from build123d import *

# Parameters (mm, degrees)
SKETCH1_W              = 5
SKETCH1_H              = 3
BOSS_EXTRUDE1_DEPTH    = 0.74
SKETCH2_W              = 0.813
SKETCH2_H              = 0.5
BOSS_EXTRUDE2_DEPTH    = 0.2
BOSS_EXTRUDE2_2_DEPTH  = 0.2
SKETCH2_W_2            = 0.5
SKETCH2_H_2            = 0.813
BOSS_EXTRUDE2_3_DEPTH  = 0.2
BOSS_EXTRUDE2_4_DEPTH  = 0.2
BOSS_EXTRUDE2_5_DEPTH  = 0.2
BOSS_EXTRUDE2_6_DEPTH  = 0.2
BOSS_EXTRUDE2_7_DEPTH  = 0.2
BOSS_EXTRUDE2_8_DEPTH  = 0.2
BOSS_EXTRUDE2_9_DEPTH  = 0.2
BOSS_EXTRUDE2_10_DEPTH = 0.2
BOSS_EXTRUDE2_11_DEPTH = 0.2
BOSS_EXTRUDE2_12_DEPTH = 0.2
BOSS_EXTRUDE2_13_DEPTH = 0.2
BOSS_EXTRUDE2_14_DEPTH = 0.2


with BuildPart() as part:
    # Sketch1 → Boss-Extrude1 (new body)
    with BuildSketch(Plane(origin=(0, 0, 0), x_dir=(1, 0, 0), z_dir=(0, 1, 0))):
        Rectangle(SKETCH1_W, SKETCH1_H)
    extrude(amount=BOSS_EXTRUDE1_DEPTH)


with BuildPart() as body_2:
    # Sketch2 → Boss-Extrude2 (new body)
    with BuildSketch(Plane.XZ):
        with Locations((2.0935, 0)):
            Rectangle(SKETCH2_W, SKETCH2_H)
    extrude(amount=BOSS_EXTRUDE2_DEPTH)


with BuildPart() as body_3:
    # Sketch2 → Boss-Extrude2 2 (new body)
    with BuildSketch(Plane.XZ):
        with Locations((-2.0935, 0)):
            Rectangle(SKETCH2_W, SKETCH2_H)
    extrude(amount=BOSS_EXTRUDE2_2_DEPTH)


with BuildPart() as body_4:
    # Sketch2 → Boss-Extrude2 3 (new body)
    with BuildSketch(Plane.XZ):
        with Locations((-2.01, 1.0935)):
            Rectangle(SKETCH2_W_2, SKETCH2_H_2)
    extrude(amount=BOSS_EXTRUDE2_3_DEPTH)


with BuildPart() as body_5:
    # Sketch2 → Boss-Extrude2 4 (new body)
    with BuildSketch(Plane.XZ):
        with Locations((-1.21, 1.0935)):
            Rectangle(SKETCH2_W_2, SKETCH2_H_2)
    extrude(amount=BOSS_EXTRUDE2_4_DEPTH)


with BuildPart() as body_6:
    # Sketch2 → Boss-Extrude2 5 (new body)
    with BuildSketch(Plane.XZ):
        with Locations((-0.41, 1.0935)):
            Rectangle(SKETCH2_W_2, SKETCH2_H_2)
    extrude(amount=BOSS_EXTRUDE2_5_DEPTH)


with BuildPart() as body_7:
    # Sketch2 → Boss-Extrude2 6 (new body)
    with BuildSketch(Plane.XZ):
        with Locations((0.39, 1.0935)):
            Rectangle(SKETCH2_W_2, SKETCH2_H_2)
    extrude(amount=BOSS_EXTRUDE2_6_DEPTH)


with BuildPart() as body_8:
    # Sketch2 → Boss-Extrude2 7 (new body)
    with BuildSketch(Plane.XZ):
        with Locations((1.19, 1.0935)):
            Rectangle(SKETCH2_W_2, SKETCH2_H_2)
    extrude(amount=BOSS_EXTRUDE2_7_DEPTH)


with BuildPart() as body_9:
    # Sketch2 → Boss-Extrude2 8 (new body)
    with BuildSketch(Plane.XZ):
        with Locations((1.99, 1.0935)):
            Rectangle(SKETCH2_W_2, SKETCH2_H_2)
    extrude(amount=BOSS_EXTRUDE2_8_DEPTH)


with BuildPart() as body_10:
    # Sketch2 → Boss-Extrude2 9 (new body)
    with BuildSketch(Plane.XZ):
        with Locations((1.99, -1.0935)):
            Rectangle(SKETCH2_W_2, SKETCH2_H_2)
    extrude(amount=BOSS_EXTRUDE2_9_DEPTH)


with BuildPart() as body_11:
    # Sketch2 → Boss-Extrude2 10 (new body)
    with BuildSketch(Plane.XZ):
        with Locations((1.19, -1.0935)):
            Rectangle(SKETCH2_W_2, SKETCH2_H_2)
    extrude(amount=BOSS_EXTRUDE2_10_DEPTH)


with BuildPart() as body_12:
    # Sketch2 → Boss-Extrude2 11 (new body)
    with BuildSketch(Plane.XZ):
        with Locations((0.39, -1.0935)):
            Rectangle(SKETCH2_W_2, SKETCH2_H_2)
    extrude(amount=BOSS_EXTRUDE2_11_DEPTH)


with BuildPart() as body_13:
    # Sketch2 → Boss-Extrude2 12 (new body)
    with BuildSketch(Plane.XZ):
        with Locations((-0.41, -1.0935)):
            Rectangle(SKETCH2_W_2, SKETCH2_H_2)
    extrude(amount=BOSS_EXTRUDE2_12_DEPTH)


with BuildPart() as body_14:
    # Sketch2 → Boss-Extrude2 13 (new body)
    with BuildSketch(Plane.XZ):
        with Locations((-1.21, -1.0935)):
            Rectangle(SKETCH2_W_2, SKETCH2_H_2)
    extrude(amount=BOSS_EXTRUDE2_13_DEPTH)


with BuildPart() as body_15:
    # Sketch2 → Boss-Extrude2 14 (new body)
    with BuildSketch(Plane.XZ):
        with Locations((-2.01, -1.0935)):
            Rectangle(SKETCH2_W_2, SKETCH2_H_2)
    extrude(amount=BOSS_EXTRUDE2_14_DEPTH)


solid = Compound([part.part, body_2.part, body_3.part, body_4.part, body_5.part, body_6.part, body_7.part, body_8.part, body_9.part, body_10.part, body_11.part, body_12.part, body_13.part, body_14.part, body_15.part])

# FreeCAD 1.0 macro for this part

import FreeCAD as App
import Part
import Sketcher
from FreeCAD import Vector


def add_polygon(sketch, points):
    """Adds a closed chain of lines whose ends are joined by coincident constraints."""
    first, n = sketch.GeometryCount, len(points)
    for a, b in zip(points, points[1:] + points[:1]):
        sketch.addGeometry(Part.LineSegment(App.Vector(*a, 0), App.Vector(*b, 0)), False)
    for i in range(n):
        sketch.addConstraint(Sketcher.Constraint("Coincident", first + i, 2, first + (i + 1) % n, 1))

doc = App.newDocument("Part")
body = doc.addObject("PartDesign::Body", "Body")

# Sketch on XZ plane
sketch1 = body.newObject("Sketcher::SketchObject", "Sketch")
sketch1.AttachmentSupport = (doc.getObject("XZ_Plane"), [""])
sketch1.MapMode = "FlatFace"
add_polygon(sketch1, [(-2.5, -1.5), (-2.5, 1.5), (2.5, 1.5), (2.5, -1.5)])  # lines 0-3
sketch1.addConstraint([
    Sketcher.Constraint("Vertical", 0),
    Sketcher.Constraint("Horizontal", 1),
    Sketcher.Constraint("Vertical", 2),
    Sketcher.Constraint("Horizontal", 3),
    Sketcher.Constraint("Symmetric", 0, 2, 2, 2, -1, 1),
    Sketcher.Constraint("DistanceX", 1, 1, 1, 2, 5.0),
    Sketcher.Constraint("DistanceY", 0, 1, 0, 2, 3.0),
])
pad1 = body.newObject("PartDesign::Pad", "Pad")
pad1.Profile = sketch1
pad1.Length = 0.74
pad1.Reversed = True
body2 = doc.addObject("PartDesign::Body", "Body001")

# Sketch on XZ plane
sketch2 = body2.newObject("Sketcher::SketchObject", "Sketch001")
sketch2.AttachmentSupport = (doc.getObject("XZ_Plane001"), [""])
sketch2.MapMode = "FlatFace"
add_polygon(sketch2, [(1.7, 0.2), (1.7, -0.2), (2.5, -0.2), (2.5, 0.2)])  # lines 0-3
sketch2.addConstraint([
    Sketcher.Constraint("Vertical", 0),
    Sketcher.Constraint("Horizontal", 1),
    Sketcher.Constraint("Vertical", 2),
    Sketcher.Constraint("Horizontal", 3),
    Sketcher.Constraint("DistanceY", 0, 2, 0, 1, 0.5),
    Sketcher.Constraint("DistanceX", -1, 1, 1, 2, 2.5),
    Sketcher.Constraint("DistanceX", 1, 1, 1, 2, 0.813),
    Sketcher.Constraint("DistanceY", 0, 2, -1, 1, 0.25),
])
pad2 = body2.newObject("PartDesign::Pad", "Pad001")
pad2.Profile = sketch2
pad2.Length = 0.2
body3 = doc.addObject("PartDesign::Body", "Body002")

# Sketch on XZ plane
sketch3 = body3.newObject("Sketcher::SketchObject", "Sketch002")
sketch3.AttachmentSupport = (doc.getObject("XZ_Plane002"), [""])
sketch3.MapMode = "FlatFace"
add_polygon(sketch3, [(-2.5, 0.2), (-2.5, -0.2), (-1.7, -0.2), (-1.7, 0.2)])  # lines 0-3
sketch3.addConstraint([
    Sketcher.Constraint("Vertical", 0),
    Sketcher.Constraint("Horizontal", 1),
    Sketcher.Constraint("Vertical", 2),
    Sketcher.Constraint("Horizontal", 3),
    Sketcher.Constraint("DistanceY", 0, 2, 0, 1, 0.5),
    Sketcher.Constraint("DistanceX", 0, 2, -1, 1, 2.5),
    Sketcher.Constraint("DistanceX", 1, 1, 1, 2, 0.813),
    Sketcher.Constraint("DistanceY", 0, 2, -1, 1, 0.25),
])
pad3 = body3.newObject("PartDesign::Pad", "Pad002")
pad3.Profile = sketch3
pad3.Length = 0.2
body4 = doc.addObject("PartDesign::Body", "Body003")

# Sketch on XZ plane
sketch4 = body4.newObject("Sketcher::SketchObject", "Sketch003")
sketch4.AttachmentSupport = (doc.getObject("XZ_Plane003"), [""])
sketch4.MapMode = "FlatFace"
add_polygon(sketch4, [(-2.26, 1.5), (-2.26, 0.69), (-1.76, 0.69), (-1.76, 1.5)])  # lines 0-3
sketch4.addConstraint([
    Sketcher.Constraint("Vertical", 0),
    Sketcher.Constraint("Horizontal", 1),
    Sketcher.Constraint("Vertical", 2),
    Sketcher.Constraint("Horizontal", 3),
    Sketcher.Constraint("DistanceX", 1, 1, 1, 2, 0.5),
    Sketcher.Constraint("DistanceY", -1, 1, 2, 2, 1.5),
    Sketcher.Constraint("DistanceY", 0, 2, 0, 1, 0.813),
    Sketcher.Constraint("DistanceX", 0, 2, -1, 1, 2.26),
])
pad4 = body4.newObject("PartDesign::Pad", "Pad003")
pad4.Profile = sketch4
pad4.Length = 0.2
body5 = doc.addObject("PartDesign::Body", "Body004")

# Sketch on XZ plane
sketch5 = body5.newObject("Sketcher::SketchObject", "Sketch004")
sketch5.AttachmentSupport = (doc.getObject("XZ_Plane004"), [""])
sketch5.MapMode = "FlatFace"
add_polygon(sketch5, [(-1.5, 1.5), (-1.5, 0.7), (-1, 0.7), (-1, 1.5)])  # lines 0-3
sketch5.addConstraint([
    Sketcher.Constraint("Vertical", 0),
    Sketcher.Constraint("Horizontal", 1),
    Sketcher.Constraint("Vertical", 2),
    Sketcher.Constraint("Horizontal", 3),
    Sketcher.Constraint("DistanceX", 1, 1, 1, 2, 0.5),
    Sketcher.Constraint("DistanceY", -1, 1, 2, 2, 1.5),
    Sketcher.Constraint("DistanceY", 0, 2, 0, 1, 0.813),
    Sketcher.Constraint("DistanceX", 0, 2, -1, 1, 1.46),
])
pad5 = body5.newObject("PartDesign::Pad", "Pad004")
pad5.Profile = sketch5
pad5.Length = 0.2
body6 = doc.addObject("PartDesign::Body", "Body005")

# Sketch on XZ plane
sketch6 = body6.newObject("Sketcher::SketchObject", "Sketch005")
sketch6.AttachmentSupport = (doc.getObject("XZ_Plane005"), [""])
sketch6.MapMode = "FlatFace"
add_polygon(sketch6, [(-0.7, 1.5), (-0.7, 0.7), (-0.2, 0.7), (-0.2, 1.5)])  # lines 0-3
sketch6.addConstraint([
    Sketcher.Constraint("Vertical", 0),
    Sketcher.Constraint("Horizontal", 1),
    Sketcher.Constraint("Vertical", 2),
    Sketcher.Constraint("Horizontal", 3),
    Sketcher.Constraint("DistanceX", 1, 1, 1, 2, 0.5),
    Sketcher.Constraint("DistanceY", -1, 1, 2, 2, 1.5),
    Sketcher.Constraint("DistanceY", 0, 2, 0, 1, 0.813),
    Sketcher.Constraint("DistanceX", 0, 2, -1, 1, 0.66),
])
pad6 = body6.newObject("PartDesign::Pad", "Pad005")
pad6.Profile = sketch6
pad6.Length = 0.2
body7 = doc.addObject("PartDesign::Body", "Body006")

# Sketch on XZ plane
sketch7 = body7.newObject("Sketcher::SketchObject", "Sketch006")
sketch7.AttachmentSupport = (doc.getObject("XZ_Plane006"), [""])
sketch7.MapMode = "FlatFace"
add_polygon(sketch7, [(0.1, 1.5), (0.1, 0.7), (0.6, 0.7), (0.6, 1.5)])  # lines 0-3
sketch7.addConstraint([
    Sketcher.Constraint("Vertical", 0),
    Sketcher.Constraint("Horizontal", 1),
    Sketcher.Constraint("Vertical", 2),
    Sketcher.Constraint("Horizontal", 3),
    Sketcher.Constraint("DistanceX", 1, 1, 1, 2, 0.5),
    Sketcher.Constraint("DistanceY", -1, 1, 2, 2, 1.5),
    Sketcher.Constraint("DistanceY", 0, 2, 0, 1, 0.813),
    Sketcher.Constraint("DistanceX", -1, 1, 0, 2, 0.14),
])
pad7 = body7.newObject("PartDesign::Pad", "Pad006")
pad7.Profile = sketch7
pad7.Length = 0.2
body8 = doc.addObject("PartDesign::Body", "Body007")

# Sketch on XZ plane
sketch8 = body8.newObject("Sketcher::SketchObject", "Sketch007")
sketch8.AttachmentSupport = (doc.getObject("XZ_Plane007"), [""])
sketch8.MapMode = "FlatFace"
add_polygon(sketch8, [(0.9, 1.5), (0.9, 0.7), (1.4, 0.7), (1.4, 1.5)])  # lines 0-3
sketch8.addConstraint([
    Sketcher.Constraint("Vertical", 0),
    Sketcher.Constraint("Horizontal", 1),
    Sketcher.Constraint("Vertical", 2),
    Sketcher.Constraint("Horizontal", 3),
    Sketcher.Constraint("DistanceX", 1, 1, 1, 2, 0.5),
    Sketcher.Constraint("DistanceY", -1, 1, 2, 2, 1.5),
    Sketcher.Constraint("DistanceY", 0, 2, 0, 1, 0.813),
    Sketcher.Constraint("DistanceX", -1, 1, 0, 2, 0.94),
])
pad8 = body8.newObject("PartDesign::Pad", "Pad007")
pad8.Profile = sketch8
pad8.Length = 0.2
body9 = doc.addObject("PartDesign::Body", "Body008")

# Sketch on XZ plane
sketch9 = body9.newObject("Sketcher::SketchObject", "Sketch008")
sketch9.AttachmentSupport = (doc.getObject("XZ_Plane008"), [""])
sketch9.MapMode = "FlatFace"
add_polygon(sketch9, [(1.7, 1.5), (1.7, 0.7), (2.2, 0.7), (2.2, 1.5)])  # lines 0-3
sketch9.addConstraint([
    Sketcher.Constraint("Vertical", 0),
    Sketcher.Constraint("Horizontal", 1),
    Sketcher.Constraint("Vertical", 2),
    Sketcher.Constraint("Horizontal", 3),
    Sketcher.Constraint("DistanceX", 1, 1, 1, 2, 0.5),
    Sketcher.Constraint("DistanceY", -1, 1, 2, 2, 1.5),
    Sketcher.Constraint("DistanceY", 0, 2, 0, 1, 0.813),
    Sketcher.Constraint("DistanceX", -1, 1, 0, 2, 1.74),
])
pad9 = body9.newObject("PartDesign::Pad", "Pad008")
pad9.Profile = sketch9
pad9.Length = 0.2
body10 = doc.addObject("PartDesign::Body", "Body009")

# Sketch on XZ plane
sketch10 = body10.newObject("Sketcher::SketchObject", "Sketch009")
sketch10.AttachmentSupport = (doc.getObject("XZ_Plane009"), [""])
sketch10.MapMode = "FlatFace"
add_polygon(sketch10, [(1.7, -0.7), (1.7, -1.5), (2.2, -1.5), (2.2, -0.7)])  # lines 0-3
sketch10.addConstraint([
    Sketcher.Constraint("Vertical", 0),
    Sketcher.Constraint("Horizontal", 1),
    Sketcher.Constraint("Vertical", 2),
    Sketcher.Constraint("Horizontal", 3),
    Sketcher.Constraint("DistanceX", 1, 1, 1, 2, 0.5),
    Sketcher.Constraint("DistanceY", 0, 2, -1, 1, 1.5),
    Sketcher.Constraint("DistanceY", 0, 2, 0, 1, 0.813),
    Sketcher.Constraint("DistanceX", -1, 1, 0, 2, 1.74),
])
pad10 = body10.newObject("PartDesign::Pad", "Pad009")
pad10.Profile = sketch10
pad10.Length = 0.2
body11 = doc.addObject("PartDesign::Body", "Body010")

# Sketch on XZ plane
sketch11 = body11.newObject("Sketcher::SketchObject", "Sketch010")
sketch11.AttachmentSupport = (doc.getObject("XZ_Plane010"), [""])
sketch11.MapMode = "FlatFace"
add_polygon(sketch11, [(0.9, -0.7), (0.9, -1.5), (1.4, -1.5), (1.4, -0.7)])  # lines 0-3
sketch11.addConstraint([
    Sketcher.Constraint("Vertical", 0),
    Sketcher.Constraint("Horizontal", 1),
    Sketcher.Constraint("Vertical", 2),
    Sketcher.Constraint("Horizontal", 3),
    Sketcher.Constraint("DistanceX", 1, 1, 1, 2, 0.5),
    Sketcher.Constraint("DistanceY", 0, 2, -1, 1, 1.5),
    Sketcher.Constraint("DistanceY", 0, 2, 0, 1, 0.813),
    Sketcher.Constraint("DistanceX", -1, 1, 0, 2, 0.94),
])
pad11 = body11.newObject("PartDesign::Pad", "Pad010")
pad11.Profile = sketch11
pad11.Length = 0.2
body12 = doc.addObject("PartDesign::Body", "Body011")

# Sketch on XZ plane
sketch12 = body12.newObject("Sketcher::SketchObject", "Sketch011")
sketch12.AttachmentSupport = (doc.getObject("XZ_Plane011"), [""])
sketch12.MapMode = "FlatFace"
add_polygon(sketch12, [(0.1, -0.7), (0.1, -1.5), (0.6, -1.5), (0.6, -0.7)])  # lines 0-3
sketch12.addConstraint([
    Sketcher.Constraint("Vertical", 0),
    Sketcher.Constraint("Horizontal", 1),
    Sketcher.Constraint("Vertical", 2),
    Sketcher.Constraint("Horizontal", 3),
    Sketcher.Constraint("DistanceX", 1, 1, 1, 2, 0.5),
    Sketcher.Constraint("DistanceY", 0, 2, -1, 1, 1.5),
    Sketcher.Constraint("DistanceY", 0, 2, 0, 1, 0.813),
    Sketcher.Constraint("DistanceX", -1, 1, 0, 2, 0.14),
])
pad12 = body12.newObject("PartDesign::Pad", "Pad011")
pad12.Profile = sketch12
pad12.Length = 0.2
body13 = doc.addObject("PartDesign::Body", "Body012")

# Sketch on XZ plane
sketch13 = body13.newObject("Sketcher::SketchObject", "Sketch012")
sketch13.AttachmentSupport = (doc.getObject("XZ_Plane012"), [""])
sketch13.MapMode = "FlatFace"
add_polygon(sketch13, [(-0.7, -0.7), (-0.7, -1.5), (-0.2, -1.5), (-0.2, -0.7)])  # lines 0-3
sketch13.addConstraint([
    Sketcher.Constraint("Vertical", 0),
    Sketcher.Constraint("Horizontal", 1),
    Sketcher.Constraint("Vertical", 2),
    Sketcher.Constraint("Horizontal", 3),
    Sketcher.Constraint("DistanceX", 1, 1, 1, 2, 0.5),
    Sketcher.Constraint("DistanceY", 0, 2, -1, 1, 1.5),
    Sketcher.Constraint("DistanceY", 0, 2, 0, 1, 0.813),
    Sketcher.Constraint("DistanceX", 0, 2, -1, 1, 0.66),
])
pad13 = body13.newObject("PartDesign::Pad", "Pad012")
pad13.Profile = sketch13
pad13.Length = 0.2
body14 = doc.addObject("PartDesign::Body", "Body013")

# Sketch on XZ plane
sketch14 = body14.newObject("Sketcher::SketchObject", "Sketch013")
sketch14.AttachmentSupport = (doc.getObject("XZ_Plane013"), [""])
sketch14.MapMode = "FlatFace"
add_polygon(sketch14, [(-1.5, -0.7), (-1.5, -1.5), (-1, -1.5), (-1, -0.7)])  # lines 0-3
sketch14.addConstraint([
    Sketcher.Constraint("Vertical", 0),
    Sketcher.Constraint("Horizontal", 1),
    Sketcher.Constraint("Vertical", 2),
    Sketcher.Constraint("Horizontal", 3),
    Sketcher.Constraint("DistanceX", 1, 1, 1, 2, 0.5),
    Sketcher.Constraint("DistanceY", 0, 2, -1, 1, 1.5),
    Sketcher.Constraint("DistanceY", 0, 2, 0, 1, 0.813),
    Sketcher.Constraint("DistanceX", 0, 2, -1, 1, 1.46),
])
pad14 = body14.newObject("PartDesign::Pad", "Pad013")
pad14.Profile = sketch14
pad14.Length = 0.2
body15 = doc.addObject("PartDesign::Body", "Body014")

# Sketch on XZ plane
sketch15 = body15.newObject("Sketcher::SketchObject", "Sketch014")
sketch15.AttachmentSupport = (doc.getObject("XZ_Plane014"), [""])
sketch15.MapMode = "FlatFace"
add_polygon(sketch15, [(-2.26, -0.69), (-2.26, -1.5), (-1.76, -1.5), (-1.76, -0.69)])  # lines 0-3
sketch15.addConstraint([
    Sketcher.Constraint("Vertical", 0),
    Sketcher.Constraint("Horizontal", 1),
    Sketcher.Constraint("Vertical", 2),
    Sketcher.Constraint("Horizontal", 3),
    Sketcher.Constraint("DistanceX", 1, 1, 1, 2, 0.5),
    Sketcher.Constraint("DistanceY", 0, 2, -1, 1, 1.5),
    Sketcher.Constraint("DistanceY", 0, 2, 0, 1, 0.813),
    Sketcher.Constraint("DistanceX", 0, 2, -1, 1, 2.26),
])
pad15 = body15.newObject("PartDesign::Pad", "Pad014")
pad15.Profile = sketch15
pad15.Length = 0.2

doc.recompute()
